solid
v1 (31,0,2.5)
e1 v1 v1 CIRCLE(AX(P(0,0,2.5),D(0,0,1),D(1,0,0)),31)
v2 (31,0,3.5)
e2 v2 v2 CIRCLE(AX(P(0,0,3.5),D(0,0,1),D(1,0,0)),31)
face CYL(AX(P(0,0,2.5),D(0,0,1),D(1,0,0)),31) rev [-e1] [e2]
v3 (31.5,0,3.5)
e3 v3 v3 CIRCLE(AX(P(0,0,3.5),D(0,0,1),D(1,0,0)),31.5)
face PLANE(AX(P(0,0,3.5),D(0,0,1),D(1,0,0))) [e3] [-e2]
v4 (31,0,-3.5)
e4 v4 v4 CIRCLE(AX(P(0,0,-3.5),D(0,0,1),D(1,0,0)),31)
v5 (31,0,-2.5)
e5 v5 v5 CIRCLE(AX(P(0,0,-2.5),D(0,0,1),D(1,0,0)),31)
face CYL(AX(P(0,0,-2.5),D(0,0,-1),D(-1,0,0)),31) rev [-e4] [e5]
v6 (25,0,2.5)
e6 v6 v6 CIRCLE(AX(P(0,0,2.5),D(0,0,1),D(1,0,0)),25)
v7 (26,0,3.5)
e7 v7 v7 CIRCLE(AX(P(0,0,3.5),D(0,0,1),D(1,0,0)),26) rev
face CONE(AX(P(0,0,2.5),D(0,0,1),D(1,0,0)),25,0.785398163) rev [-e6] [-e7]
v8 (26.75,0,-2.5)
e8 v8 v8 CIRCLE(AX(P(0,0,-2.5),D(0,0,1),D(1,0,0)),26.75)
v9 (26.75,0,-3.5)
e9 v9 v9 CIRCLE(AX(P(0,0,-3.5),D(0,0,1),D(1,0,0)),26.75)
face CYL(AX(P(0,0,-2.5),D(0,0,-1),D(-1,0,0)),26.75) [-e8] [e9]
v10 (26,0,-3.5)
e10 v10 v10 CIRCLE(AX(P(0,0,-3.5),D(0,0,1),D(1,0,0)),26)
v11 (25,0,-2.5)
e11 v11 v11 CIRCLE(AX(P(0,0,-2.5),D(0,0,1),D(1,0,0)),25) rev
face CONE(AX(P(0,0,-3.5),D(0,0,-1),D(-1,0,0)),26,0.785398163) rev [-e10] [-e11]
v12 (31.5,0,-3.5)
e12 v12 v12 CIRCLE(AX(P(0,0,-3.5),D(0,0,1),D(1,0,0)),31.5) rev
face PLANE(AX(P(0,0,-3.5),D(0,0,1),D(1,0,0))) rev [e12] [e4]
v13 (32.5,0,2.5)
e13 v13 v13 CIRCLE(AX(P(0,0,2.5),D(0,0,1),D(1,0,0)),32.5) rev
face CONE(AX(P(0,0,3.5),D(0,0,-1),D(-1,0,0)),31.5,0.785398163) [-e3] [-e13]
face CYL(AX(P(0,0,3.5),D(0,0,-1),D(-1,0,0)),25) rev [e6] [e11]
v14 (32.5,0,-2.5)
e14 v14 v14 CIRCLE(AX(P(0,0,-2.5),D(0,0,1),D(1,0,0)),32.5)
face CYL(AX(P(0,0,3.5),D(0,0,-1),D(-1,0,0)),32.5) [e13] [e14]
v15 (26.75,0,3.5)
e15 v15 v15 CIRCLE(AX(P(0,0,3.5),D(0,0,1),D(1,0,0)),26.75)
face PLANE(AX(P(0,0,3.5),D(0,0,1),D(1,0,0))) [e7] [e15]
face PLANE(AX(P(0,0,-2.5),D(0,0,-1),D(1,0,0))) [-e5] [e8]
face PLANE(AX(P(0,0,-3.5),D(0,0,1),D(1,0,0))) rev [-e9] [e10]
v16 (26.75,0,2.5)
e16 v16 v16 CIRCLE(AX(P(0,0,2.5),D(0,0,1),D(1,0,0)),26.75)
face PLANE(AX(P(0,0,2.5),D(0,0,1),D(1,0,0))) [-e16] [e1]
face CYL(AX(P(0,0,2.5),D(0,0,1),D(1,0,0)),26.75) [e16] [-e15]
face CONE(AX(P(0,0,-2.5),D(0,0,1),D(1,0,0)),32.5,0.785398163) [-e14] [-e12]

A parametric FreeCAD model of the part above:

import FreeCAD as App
import Part
import Sketcher


def edges_at(feature, points):
    """Names of the edges that pass closest to the given points."""
    edges = feature.Shape.Edges
    near = lambda p: min(range(len(edges)), key=lambda i: edges[i].distToShape(Part.Vertex(*p))[0])
    return sorted({f"Edge{near(p) + 1}" for p in points})

doc = App.newDocument("Part")
params = doc.addObject("Spreadsheet::Sheet", "Params")
for row, (alias, value) in enumerate([
    ("sketch1_diameter", "65 mm"),
    ("sketch1_diameter2", "50 mm"),
    ("pad1_length", "7 mm"),
    ("sketch2_diameter", "62 mm"),
    ("sketch2_diameter2", "53.5 mm"),
    ("pocket1_length", "1 mm"),
    ("chamfer_size", "1 mm"),
], start=1):
    params.set(f"A{row}", alias)
    params.set(f"B{row}", "=" + value)
    params.setAlias(f"B{row}", alias)

body = doc.addObject("PartDesign::Body", "Body")

sketch1 = doc.addObject("Sketcher::SketchObject", "Sketch")
body.addObject(sketch1)
sketch1.AttachmentSupport = (doc.XY_Plane, [""])
sketch1.MapMode = "FlatFace"
sketch1.addGeometry([
    Part.Circle(App.Vector(0, 0, 0), App.Vector(0, 0, 1), 32),
    Part.Circle(App.Vector(0, 0, 0), App.Vector(0, 0, 1), 25),
], False)
sketch1.addConstraint([
    Sketcher.Constraint("Coincident", 0, 3, -1, 1),
    Sketcher.Constraint("Coincident", 1, 3, -1, 1),
    Sketcher.Constraint("Diameter", 0, 65.0),
    Sketcher.Constraint("Diameter", 1, 50.0),
])
sketch1.setExpression("Constraints[2]", "Params.sketch1_diameter")
sketch1.setExpression("Constraints[3]", "Params.sketch1_diameter2")
pad1 = doc.addObject("PartDesign::Pad", "Pad")
body.addObject(pad1)
pad1.Profile = sketch1
pad1.setExpression("Length", "Params.pad1_length")
pad1.Midplane = True

sketch2 = doc.addObject("Sketcher::SketchObject", "Sketch001")
body.addObject(sketch2)
sketch2.AttachmentSupport = (doc.XY_Plane, [""])
sketch2.MapMode = "FlatFace"
sketch2.AttachmentOffset = App.Placement(App.Vector(0, 0, 3.5), App.Rotation())
sketch2.addGeometry([
    Part.Circle(App.Vector(0, 0, 0), App.Vector(0, 0, 1), 31),
    Part.Circle(App.Vector(0, 0, 0), App.Vector(0, 0, 1), 27),
], False)
sketch2.addConstraint([
    Sketcher.Constraint("Coincident", 0, 3, -1, 1),
    Sketcher.Constraint("Coincident", 1, 3, -1, 1),
    Sketcher.Constraint("Diameter", 0, 62.0),
    Sketcher.Constraint("Diameter", 1, 53.5),
])
sketch2.setExpression("Constraints[2]", "Params.sketch2_diameter")
sketch2.setExpression("Constraints[3]", "Params.sketch2_diameter2")
pocket1 = doc.addObject("PartDesign::Pocket", "Pocket")
body.addObject(pocket1)
pocket1.Profile = sketch2
pocket1.setExpression("Length", "Params.pocket1_length")
doc.recompute()

mirrored = doc.addObject("PartDesign::Mirrored", "Mirrored")
body.addObject(mirrored)
mirrored.Originals = [pocket1]
mirrored.MirrorPlane = (doc.XY_Plane, [""])
body.Tip = mirrored
doc.recompute()

chamfer = doc.addObject("PartDesign::Chamfer", "Chamfer")
body.addObject(chamfer)
chamfer.Base = (mirrored, edges_at(mirrored, [
    (-32.5, 0, -3.5),
    (-32.5, 0, 3.5),
    (-25, 0, -3.5),
    (-25, 0, 3.5),
]))
chamfer.setExpression("Size", "Params.chamfer_size")

doc.recompute()
